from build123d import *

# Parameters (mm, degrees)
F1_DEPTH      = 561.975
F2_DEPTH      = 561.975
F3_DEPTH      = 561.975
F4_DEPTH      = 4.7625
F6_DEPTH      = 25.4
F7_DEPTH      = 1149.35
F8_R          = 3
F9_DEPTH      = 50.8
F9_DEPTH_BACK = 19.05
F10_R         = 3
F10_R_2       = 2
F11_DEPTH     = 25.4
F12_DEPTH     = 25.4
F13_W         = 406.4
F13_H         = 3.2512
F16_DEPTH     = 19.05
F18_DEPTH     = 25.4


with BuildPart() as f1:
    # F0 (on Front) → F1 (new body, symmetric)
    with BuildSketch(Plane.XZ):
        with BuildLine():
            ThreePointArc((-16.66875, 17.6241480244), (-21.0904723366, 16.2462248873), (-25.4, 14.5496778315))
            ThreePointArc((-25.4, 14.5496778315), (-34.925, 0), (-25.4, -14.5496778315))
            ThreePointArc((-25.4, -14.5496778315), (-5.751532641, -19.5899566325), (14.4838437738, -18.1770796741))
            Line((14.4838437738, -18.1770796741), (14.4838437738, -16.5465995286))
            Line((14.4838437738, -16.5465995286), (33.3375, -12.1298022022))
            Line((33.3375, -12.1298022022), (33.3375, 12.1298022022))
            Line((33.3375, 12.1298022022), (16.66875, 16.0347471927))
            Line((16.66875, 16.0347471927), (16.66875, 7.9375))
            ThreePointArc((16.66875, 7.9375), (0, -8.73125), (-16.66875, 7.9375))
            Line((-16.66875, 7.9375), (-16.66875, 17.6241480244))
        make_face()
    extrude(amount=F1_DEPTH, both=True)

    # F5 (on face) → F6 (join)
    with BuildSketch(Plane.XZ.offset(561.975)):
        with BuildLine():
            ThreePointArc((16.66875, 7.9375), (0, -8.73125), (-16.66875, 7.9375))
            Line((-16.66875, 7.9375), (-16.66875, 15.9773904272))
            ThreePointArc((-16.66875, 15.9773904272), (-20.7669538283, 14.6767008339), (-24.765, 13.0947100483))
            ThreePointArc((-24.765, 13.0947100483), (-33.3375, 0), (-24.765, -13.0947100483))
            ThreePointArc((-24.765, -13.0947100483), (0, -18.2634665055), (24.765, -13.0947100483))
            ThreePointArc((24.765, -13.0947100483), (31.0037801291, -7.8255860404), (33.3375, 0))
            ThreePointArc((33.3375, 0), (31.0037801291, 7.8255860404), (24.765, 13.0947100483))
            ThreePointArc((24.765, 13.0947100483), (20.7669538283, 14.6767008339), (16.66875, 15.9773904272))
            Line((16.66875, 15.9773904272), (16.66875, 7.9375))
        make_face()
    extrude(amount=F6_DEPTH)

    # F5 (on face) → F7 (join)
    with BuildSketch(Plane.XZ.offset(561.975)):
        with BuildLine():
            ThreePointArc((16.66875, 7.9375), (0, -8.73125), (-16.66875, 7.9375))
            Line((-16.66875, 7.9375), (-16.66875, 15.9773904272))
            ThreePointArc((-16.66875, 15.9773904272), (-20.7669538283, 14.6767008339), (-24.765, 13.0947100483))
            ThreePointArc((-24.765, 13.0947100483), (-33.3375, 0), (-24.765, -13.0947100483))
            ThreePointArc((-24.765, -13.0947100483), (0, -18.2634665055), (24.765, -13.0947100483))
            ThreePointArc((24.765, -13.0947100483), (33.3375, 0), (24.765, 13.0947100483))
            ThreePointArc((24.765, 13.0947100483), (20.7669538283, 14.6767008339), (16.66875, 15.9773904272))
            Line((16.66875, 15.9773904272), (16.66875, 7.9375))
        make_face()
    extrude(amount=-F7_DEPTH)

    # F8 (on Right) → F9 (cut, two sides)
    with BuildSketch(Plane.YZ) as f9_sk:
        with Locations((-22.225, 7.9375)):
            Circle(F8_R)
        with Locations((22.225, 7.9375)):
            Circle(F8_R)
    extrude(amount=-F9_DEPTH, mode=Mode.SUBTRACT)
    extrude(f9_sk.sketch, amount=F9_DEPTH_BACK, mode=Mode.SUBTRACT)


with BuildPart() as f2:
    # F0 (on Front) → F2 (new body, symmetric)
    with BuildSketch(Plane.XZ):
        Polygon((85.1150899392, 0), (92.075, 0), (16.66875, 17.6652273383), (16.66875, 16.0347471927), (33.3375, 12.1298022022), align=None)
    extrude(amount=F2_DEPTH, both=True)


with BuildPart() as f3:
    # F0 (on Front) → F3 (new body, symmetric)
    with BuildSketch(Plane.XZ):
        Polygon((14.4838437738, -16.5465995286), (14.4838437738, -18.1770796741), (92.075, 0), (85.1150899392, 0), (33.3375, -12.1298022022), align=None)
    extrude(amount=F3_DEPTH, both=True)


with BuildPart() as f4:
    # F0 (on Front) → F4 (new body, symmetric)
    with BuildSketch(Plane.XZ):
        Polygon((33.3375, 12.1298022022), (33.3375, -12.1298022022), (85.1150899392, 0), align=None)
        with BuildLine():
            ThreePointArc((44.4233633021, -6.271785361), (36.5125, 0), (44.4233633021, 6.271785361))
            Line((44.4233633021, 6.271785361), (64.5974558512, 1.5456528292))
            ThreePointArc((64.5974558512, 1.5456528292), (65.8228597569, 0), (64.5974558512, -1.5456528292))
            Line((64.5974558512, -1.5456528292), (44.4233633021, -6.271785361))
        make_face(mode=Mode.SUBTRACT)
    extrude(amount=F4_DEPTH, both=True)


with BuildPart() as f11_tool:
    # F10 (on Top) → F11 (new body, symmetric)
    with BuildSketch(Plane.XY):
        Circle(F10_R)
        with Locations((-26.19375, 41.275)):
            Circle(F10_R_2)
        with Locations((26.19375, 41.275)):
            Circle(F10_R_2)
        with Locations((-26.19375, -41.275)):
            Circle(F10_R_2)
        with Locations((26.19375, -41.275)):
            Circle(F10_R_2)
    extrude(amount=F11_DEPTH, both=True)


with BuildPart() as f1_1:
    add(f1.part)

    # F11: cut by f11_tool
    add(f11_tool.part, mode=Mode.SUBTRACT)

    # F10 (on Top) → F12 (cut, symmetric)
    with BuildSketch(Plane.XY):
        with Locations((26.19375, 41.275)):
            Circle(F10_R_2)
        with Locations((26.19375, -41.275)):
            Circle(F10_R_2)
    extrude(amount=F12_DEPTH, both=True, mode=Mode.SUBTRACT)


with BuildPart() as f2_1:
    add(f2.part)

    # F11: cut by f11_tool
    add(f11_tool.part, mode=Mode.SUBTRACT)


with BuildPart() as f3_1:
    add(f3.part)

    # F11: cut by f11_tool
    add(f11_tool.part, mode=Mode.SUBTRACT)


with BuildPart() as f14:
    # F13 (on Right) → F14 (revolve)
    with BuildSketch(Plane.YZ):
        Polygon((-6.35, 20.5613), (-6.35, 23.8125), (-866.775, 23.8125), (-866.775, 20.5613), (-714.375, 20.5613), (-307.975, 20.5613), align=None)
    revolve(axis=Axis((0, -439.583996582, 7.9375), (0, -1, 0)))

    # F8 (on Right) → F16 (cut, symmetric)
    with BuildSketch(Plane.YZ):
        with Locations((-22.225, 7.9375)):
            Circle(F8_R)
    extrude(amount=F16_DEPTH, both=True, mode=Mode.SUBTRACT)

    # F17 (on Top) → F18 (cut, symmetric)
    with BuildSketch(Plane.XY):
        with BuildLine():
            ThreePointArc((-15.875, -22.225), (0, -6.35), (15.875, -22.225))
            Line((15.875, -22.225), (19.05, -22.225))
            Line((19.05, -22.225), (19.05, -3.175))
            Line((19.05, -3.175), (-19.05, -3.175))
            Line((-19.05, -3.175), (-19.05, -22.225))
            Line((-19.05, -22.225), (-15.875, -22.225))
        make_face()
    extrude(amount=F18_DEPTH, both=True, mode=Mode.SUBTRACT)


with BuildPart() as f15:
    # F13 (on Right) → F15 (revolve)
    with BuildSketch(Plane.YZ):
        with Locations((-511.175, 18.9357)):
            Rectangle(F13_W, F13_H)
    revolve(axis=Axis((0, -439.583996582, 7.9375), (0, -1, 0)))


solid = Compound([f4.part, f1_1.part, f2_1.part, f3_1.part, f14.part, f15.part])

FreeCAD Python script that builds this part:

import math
import FreeCAD as App
import Part
import Sketcher

V = App.Vector
Q = App.Units.Quantity


def add_polygon(sketch, points):
    """Adds a closed chain of lines whose ends are joined by coincident constraints."""
    first, n = sketch.GeometryCount, len(points)
    for a, b in zip(points, points[1:] + points[:1]):
        sketch.addGeometry(Part.LineSegment(App.Vector(*a, 0), App.Vector(*b, 0)), False)
    for i in range(n):
        sketch.addConstraint(Sketcher.Constraint("Coincident", first + i, 2, first + (i + 1) % n, 1))

doc = App.newDocument("Part")
body = doc.addObject("PartDesign::Body", "Body")

sketch1 = body.newObject("Sketcher::SketchObject", "Sketch")
sketch1.AttachmentSupport = (doc.getObject("XZ_Plane"), [""])
sketch1.MapMode = "FlatFace"
sketch1.addGeometry(Part.ArcOfCircle(Part.Circle(V(0, -43.649034, 0), V(0, 0, 1), 63.5), math.radians(105.218455), math.radians(113.578178)), False)
sketch1.addGeometry(Part.ArcOfCircle(Part.Circle(V(-19.05, 0, 0), V(0, 0, 1), 15.875), math.radians(113.578178), math.radians(246.421822)), False)
sketch1.addGeometry(Part.ArcOfCircle(Part.Circle(V(0, 43.649033, 0), V(0, 0, 1), 63.5), math.radians(-113.578178), math.radians(-76.815233)), False)
sketch1.addGeometry(Part.LineSegment(V(14.483844, -18.17708, 0), V(14.483844, -16.5466, 0)), False)
sketch1.addGeometry(Part.LineSegment(V(14.483844, -16.5466, 0), V(33.3375, -12.129802, 0)), False)
sketch1.addGeometry(Part.LineSegment(V(33.3375, -12.129802, 0), V(33.3375, 12.129802, 0)), False)
sketch1.addGeometry(Part.LineSegment(V(33.3375, 12.129802, 0), V(16.66875, 16.034747, 0)), False)
sketch1.addGeometry(Part.LineSegment(V(16.66875, 16.034747, 0), V(16.66875, 7.9375, 0)), False)
sketch1.addGeometry(Part.ArcOfCircle(Part.Circle(V(0, 7.9375, 0), V(0, 0, 1), 16.66875), math.radians(180), math.radians(360)), False)
sketch1.addGeometry(Part.LineSegment(V(-16.66875, 7.9375, 0), V(-16.66875, 17.624148, 0)), False)
sketch1.addConstraint(Sketcher.Constraint("Tangent", 0, 2, 1, 1))
sketch1.addConstraint(Sketcher.Constraint("Tangent", 1, 2, 2, 1))
sketch1.addConstraint(Sketcher.Constraint("Coincident", 2, 2, 3, 1))
sketch1.addConstraint(Sketcher.Constraint("Coincident", 3, 2, 4, 1))
sketch1.addConstraint(Sketcher.Constraint("Coincident", 4, 2, 5, 1))
sketch1.addConstraint(Sketcher.Constraint("Coincident", 5, 2, 6, 1))
sketch1.addConstraint(Sketcher.Constraint("Coincident", 6, 2, 7, 1))
sketch1.addConstraint(Sketcher.Constraint("Tangent", 7, 2, 8, 2))
sketch1.addConstraint(Sketcher.Constraint("Tangent", 8, 1, 9, 1))
sketch1.addConstraint(Sketcher.Constraint("Coincident", 9, 2, 0, 1))
sketch1.addConstraint(Sketcher.Constraint("Vertical", 3))
sketch1.addConstraint(Sketcher.Constraint("Vertical", 5))
sketch1.addConstraint(Sketcher.Constraint("Vertical", 7))
sketch1.addConstraint(Sketcher.Constraint("Vertical", 9))
sketch1.addConstraint(Sketcher.Constraint("Equal", 0, 2))
sketch1.addConstraint(Sketcher.Constraint("Symmetric", 0, 3, 2, 3, -1, 1))
sketch1.addConstraint(Sketcher.Constraint("PointOnObject", 0, 3, -2))
sketch1.addConstraint(Sketcher.Constraint("PointOnObject", 8, 3, -2))
sketch1.addConstraint(Sketcher.Constraint("Radius", 0, Q("2.5 in")))
sketch1.addConstraint(Sketcher.Constraint("DistanceX", 0, 2, -1, 1, Q("1 in")))
sketch1.addConstraint(Sketcher.Constraint("Radius", 1, Q("0.625 in")))
sketch1.addConstraint(Sketcher.Constraint("Radius", 8, Q("0.65625 in")))
sketch1.addConstraint(Sketcher.Constraint("DistanceY", -1, 1, 8, 3, Q("0.3125 in")))
sketch1.addConstraint(Sketcher.Constraint("DistanceX", -1, 1, 4, 2, Q("1.3125 in")))
sketch1.addConstraint(Sketcher.Constraint("DistanceY", 3, 1, 3, 2, Q("1.63048 mm")))
sketch1.addConstraint(Sketcher.Constraint("DistanceY", 3, 2, -1, 1, Q("16.5466 mm")))
sketch1.addConstraint(Sketcher.Constraint("DistanceY", 3, 2, 5, 2, Q("28.676402 mm")))
sketch1.addConstraint(Sketcher.Constraint("Distance", 6, Q("17.120042 mm")))
sketch1.addConstraint(Sketcher.Constraint("DistanceY", 5, 1, 5, 2, Q("24.259604 mm")))
pad1 = body.newObject("PartDesign::Pad", "Pad")
pad1.Profile = sketch1
pad1.Length = Q("44.25 in")
pad1.Midplane = True

sketch2 = body.newObject("Sketcher::SketchObject", "Sketch001")
sketch2.AttachmentSupport = (doc.getObject("XZ_Plane"), [""])
sketch2.MapMode = "FlatFace"
sketch2.AttachmentOffset = App.Placement(V(0, 0, 22.125 * 25.4), App.Rotation())
sketch2.addGeometry(Part.ArcOfCircle(Part.Circle(V(0, 7.9375, 0), V(0, 0, 1), 16.66875), math.radians(180), math.radians(360)), False)
sketch2.addGeometry(Part.LineSegment(V(-16.66875, 7.9375, 0), V(-16.66875, 15.97739, 0)), False)
sketch2.addGeometry(Part.ArcOfCircle(Part.Circle(V(0, -43.649033, 0), V(0, 0, 1), 61.9125), math.radians(105.618498), math.radians(113.578178)), False)
sketch2.addGeometry(Part.ArcOfCircle(Part.Circle(V(-19.05, 0, 0), V(0, 0, 1), 14.2875), math.radians(113.578178), math.radians(246.421822)), False)
sketch2.addGeometry(Part.ArcOfCircle(Part.Circle(V(0, 43.649033, 0), V(0, 0, 1), 61.9125), math.radians(-113.578178), math.radians(-66.421822)), False)
sketch2.addGeometry(Part.ArcOfCircle(Part.Circle(V(19.05, 0, 0), V(0, 0, 1), 14.2875), math.radians(-66.421822), math.radians(0)), False)
sketch2.addGeometry(Part.ArcOfCircle(Part.Circle(V(19.05, 0, 0), V(0, 0, 1), 14.2875), math.radians(0), math.radians(66.421822)), False)
sketch2.addGeometry(Part.ArcOfCircle(Part.Circle(V(0, -43.649033, 0), V(0, 0, 1), 61.9125), math.radians(66.421822), math.radians(74.381502)), False)
sketch2.addGeometry(Part.LineSegment(V(16.66875, 15.97739, 0), V(16.66875, 7.9375, 0)), False)
sketch2.addConstraint(Sketcher.Constraint("Tangent", 0, 1, 1, 1))
sketch2.addConstraint(Sketcher.Constraint("Coincident", 1, 2, 2, 1))
sketch2.addConstraint(Sketcher.Constraint("Tangent", 2, 2, 3, 1))
sketch2.addConstraint(Sketcher.Constraint("Tangent", 3, 2, 4, 1))
sketch2.addConstraint(Sketcher.Constraint("Tangent", 4, 2, 5, 1))
sketch2.addConstraint(Sketcher.Constraint("Tangent", 5, 2, 6, 1))
sketch2.addConstraint(Sketcher.Constraint("Tangent", 6, 2, 7, 1))
sketch2.addConstraint(Sketcher.Constraint("Coincident", 7, 2, 8, 1))
sketch2.addConstraint(Sketcher.Constraint("Tangent", 8, 2, 0, 2))
sketch2.addConstraint(Sketcher.Constraint("Vertical", 1))
sketch2.addConstraint(Sketcher.Constraint("Vertical", 8))
sketch2.addConstraint(Sketcher.Constraint("Coincident", 7, 3, 2, 3))
sketch2.addConstraint(Sketcher.Constraint("Equal", 2, 4))
sketch2.addConstraint(Sketcher.Constraint("Equal", 3, 5))
sketch2.addConstraint(Sketcher.Constraint("Equal", 5, 6))
sketch2.addConstraint(Sketcher.Constraint("Equal", 4, 7))
sketch2.addConstraint(Sketcher.Constraint("Symmetric", 2, 3, 4, 3, -1, 1))
sketch2.addConstraint(Sketcher.Constraint("Symmetric", 1, 2, 7, 2, -2))
sketch2.addConstraint(Sketcher.Constraint("PointOnObject", 5, 2, -1))
sketch2.addConstraint(Sketcher.Constraint("Radius", 0, Q("0.65625 in")))
sketch2.addConstraint(Sketcher.Constraint("Radius", 2, Q("2.4375 in")))
sketch2.addConstraint(Sketcher.Constraint("Radius", 3, Q("0.5625 in")))
sketch2.addConstraint(Sketcher.Constraint("DistanceX", 3, 3, 5, 3, Q("1.5 in")))
sketch2.addConstraint(Sketcher.Constraint("DistanceY", -1, 1, 0, 3, Q("0.3125 in")))
pad2 = body.newObject("PartDesign::Pad", "Pad001")
pad2.Profile = sketch2
pad2.Length = Q("1 in")

sketch3 = body.newObject("Sketcher::SketchObject", "Sketch002")
sketch3.AttachmentSupport = (doc.getObject("XZ_Plane"), [""])
sketch3.MapMode = "FlatFace"
sketch3.AttachmentOffset = App.Placement(V(0, 0, 22.125 * 25.4), App.Rotation())
sketch3.addGeometry(Part.ArcOfCircle(Part.Circle(V(0, 7.9375, 0), V(0, 0, 1), 16.66875), math.radians(180), math.radians(360)), False)
sketch3.addGeometry(Part.LineSegment(V(-16.66875, 7.9375, 0), V(-16.66875, 15.97739, 0)), False)
sketch3.addGeometry(Part.ArcOfCircle(Part.Circle(V(0, -43.649033, 0), V(0, 0, 1), 61.9125), math.radians(105.618498), math.radians(113.578178)), False)
sketch3.addGeometry(Part.ArcOfCircle(Part.Circle(V(-19.05, 0, 0), V(0, 0, 1), 14.2875), math.radians(113.578178), math.radians(246.421822)), False)
sketch3.addGeometry(Part.ArcOfCircle(Part.Circle(V(0, 43.649033, 0), V(0, 0, 1), 61.9125), math.radians(-113.578178), math.radians(-66.421822)), False)
sketch3.addGeometry(Part.ArcOfCircle(Part.Circle(V(19.05, 0, 0), V(0, 0, 1), 14.2875), math.radians(-66.421822), math.radians(66.421822)), False)
sketch3.addGeometry(Part.ArcOfCircle(Part.Circle(V(0, -43.649033, 0), V(0, 0, 1), 61.9125), math.radians(66.421822), math.radians(74.381502)), False)
sketch3.addGeometry(Part.LineSegment(V(16.66875, 15.97739, 0), V(16.66875, 7.9375, 0)), False)
sketch3.addConstraint(Sketcher.Constraint("Tangent", 0, 1, 1, 1))
sketch3.addConstraint(Sketcher.Constraint("Coincident", 1, 2, 2, 1))
sketch3.addConstraint(Sketcher.Constraint("Tangent", 2, 2, 3, 1))
sketch3.addConstraint(Sketcher.Constraint("Tangent", 3, 2, 4, 1))
sketch3.addConstraint(Sketcher.Constraint("Tangent", 4, 2, 5, 1))
sketch3.addConstraint(Sketcher.Constraint("Tangent", 5, 2, 6, 1))
sketch3.addConstraint(Sketcher.Constraint("Coincident", 6, 2, 7, 1))
sketch3.addConstraint(Sketcher.Constraint("Tangent", 7, 2, 0, 2))
sketch3.addConstraint(Sketcher.Constraint("Vertical", 1))
sketch3.addConstraint(Sketcher.Constraint("Vertical", 7))
sketch3.addConstraint(Sketcher.Constraint("Coincident", 6, 3, 2, 3))
sketch3.addConstraint(Sketcher.Constraint("Equal", 2, 4))
sketch3.addConstraint(Sketcher.Constraint("Equal", 3, 5))
sketch3.addConstraint(Sketcher.Constraint("Equal", 4, 6))
sketch3.addConstraint(Sketcher.Constraint("Symmetric", 2, 3, 4, 3, -1, 1))
sketch3.addConstraint(Sketcher.Constraint("Symmetric", 1, 2, 6, 2, -2))
sketch3.addConstraint(Sketcher.Constraint("Radius", 0, Q("0.65625 in")))
sketch3.addConstraint(Sketcher.Constraint("Radius", 2, Q("2.4375 in")))
sketch3.addConstraint(Sketcher.Constraint("Radius", 3, Q("0.5625 in")))
sketch3.addConstraint(Sketcher.Constraint("DistanceX", 3, 3, 5, 3, Q("1.5 in")))
sketch3.addConstraint(Sketcher.Constraint("DistanceY", -1, 1, 0, 3, Q("0.3125 in")))
pad3 = body.newObject("PartDesign::Pad", "Pad002")
pad3.Profile = sketch3
pad3.Length = Q("45.25 in")
pad3.Reversed = True

sketch4 = body.newObject("Sketcher::SketchObject", "Sketch003")
sketch4.AttachmentSupport = (doc.getObject("YZ_Plane"), [""])
sketch4.MapMode = "FlatFace"
sketch4.addGeometry(Part.Circle(V(-22.225, 7.9375, 0), V(0, 0, 1), 3), False)
sketch4.addGeometry(Part.Circle(V(22.225, 7.9375, 0), V(0, 0, 1), 3), False)
sketch4.addConstraint(Sketcher.Constraint("Equal", 0, 1))
sketch4.addConstraint(Sketcher.Constraint("Symmetric", 0, 3, 1, 3, -2))
sketch4.addConstraint(Sketcher.Constraint("Diameter", 0, Q("6 mm")))
sketch4.addConstraint(Sketcher.Constraint("DistanceX", 0, 3, 1, 3, Q("1.75 in")))
sketch4.addConstraint(Sketcher.Constraint("DistanceY", -1, 1, 0, 3, Q("0.3125 in")))
pocket1 = body.newObject("PartDesign::Pocket", "Pocket")
pocket1.Profile = sketch4
pocket1.Type = "TwoLengths"
pocket1.Length = Q("2 in")
pocket1.Length2 = Q("0.75 in")
body2 = doc.addObject("PartDesign::Body", "Body001")

sketch5 = body2.newObject("Sketcher::SketchObject", "Sketch004")
sketch5.AttachmentSupport = (doc.getObject("XZ_Plane001"), [""])
sketch5.MapMode = "FlatFace"
add_polygon(sketch5, [(85.11509, 0), (92.075, 0), (16.66875, 17.665227), (16.66875, 16.034747), (33.3375, 12.129802)])
sketch5.addConstraint(Sketcher.Constraint("Horizontal", 0))
sketch5.addConstraint(Sketcher.Constraint("Vertical", 2))
sketch5.addConstraint(Sketcher.Constraint("PointOnObject", 0, 2, -1))
sketch5.addConstraint(Sketcher.Constraint("Parallel", 1, 3))
sketch5.addConstraint(Sketcher.Constraint("Parallel", 3, 4))
sketch5.addConstraint(Sketcher.Constraint("DistanceX", -1, 1, 0, 2, Q("3.625 in")))
sketch5.addConstraint(Sketcher.Constraint("DistanceX", -1, 1, 1, 2, Q("0.65625 in")))
sketch5.addConstraint(Sketcher.Constraint("DistanceX", -1, 1, 3, 2, Q("1.3125 in")))
sketch5.addConstraint(Sketcher.Constraint("DistanceX", 0, 1, 0, 2, Q("6.95991 mm")))
sketch5.addConstraint(Sketcher.Constraint("DistanceY", 2, 2, 2, 1, Q("1.63048 mm")))
pad4 = body2.newObject("PartDesign::Pad", "Pad003")
pad4.Profile = sketch5
pad4.Length = Q("44.25 in")
pad4.Midplane = True
body3 = doc.addObject("PartDesign::Body", "Body002")

sketch6 = body3.newObject("Sketcher::SketchObject", "Sketch005")
sketch6.AttachmentSupport = (doc.getObject("XZ_Plane002"), [""])
sketch6.MapMode = "FlatFace"
add_polygon(sketch6, [(14.483844, -16.5466), (14.483844, -18.17708), (92.075, 0), (85.11509, 0), (33.3375, -12.129802)])
sketch6.addConstraint(Sketcher.Constraint("Vertical", 0))
sketch6.addConstraint(Sketcher.Constraint("Horizontal", 2))
sketch6.addConstraint(Sketcher.Constraint("PointOnObject", 1, 2, -1))
sketch6.addConstraint(Sketcher.Constraint("Parallel", 1, 3))
sketch6.addConstraint(Sketcher.Constraint("Parallel", 3, 4))
sketch6.addConstraint(Sketcher.Constraint("DistanceX", -1, 1, 1, 2, Q("3.625 in")))
sketch6.addConstraint(Sketcher.Constraint("DistanceX", -1, 1, 3, 2, Q("1.3125 in")))
sketch6.addConstraint(Sketcher.Constraint("DistanceX", 2, 2, 2, 1, Q("6.95991 mm")))
sketch6.addConstraint(Sketcher.Constraint("DistanceY", 0, 2, 0, 1, Q("1.63048 mm")))
sketch6.addConstraint(Sketcher.Constraint("DistanceY", 4, 2, -1, 1, Q("16.5466 mm")))
pad5 = body3.newObject("PartDesign::Pad", "Pad004")
pad5.Profile = sketch6
pad5.Length = Q("44.25 in")
pad5.Midplane = True
body4 = doc.addObject("PartDesign::Body", "Body003")

sketch7 = body4.newObject("Sketcher::SketchObject", "Sketch006")
sketch7.AttachmentSupport = (doc.getObject("XZ_Plane003"), [""])
sketch7.MapMode = "FlatFace"
add_polygon(sketch7, [(33.3375, 12.129802), (33.3375, -12.129802), (85.11509, 0)])
sketch7.addGeometry(Part.LineSegment(V(64.597456, -1.545653, 0), V(44.423363, -6.271785, 0)), False)
sketch7.addGeometry(Part.ArcOfCircle(Part.Circle(V(42.954088, 0, 0), V(0, 0, 1), 6.441588), math.radians(76.815233), math.radians(283.184767)), False)
sketch7.addGeometry(Part.LineSegment(V(44.423363, 6.271785, 0), V(64.597456, 1.545653, 0)), False)
sketch7.addGeometry(Part.ArcOfCircle(Part.Circle(V(64.23536, 0, 0), V(0, 0, 1), 1.5875), math.radians(-76.815233), math.radians(76.815233)), False)
sketch7.addConstraint(Sketcher.Constraint("Tangent", 3, 2, 4, 2))
sketch7.addConstraint(Sketcher.Constraint("Tangent", 4, 1, 5, 1))
sketch7.addConstraint(Sketcher.Constraint("Tangent", 5, 2, 6, 2))
sketch7.addConstraint(Sketcher.Constraint("Tangent", 6, 1, 3, 1))
sketch7.addConstraint(Sketcher.Constraint("Vertical", 0))
sketch7.addConstraint(Sketcher.Constraint("Symmetric", 3, 2, 4, 1, -1))
sketch7.addConstraint(Sketcher.Constraint("PointOnObject", 1, 2, -1))
sketch7.addConstraint(Sketcher.Constraint("Parallel", 1, 3))
sketch7.addConstraint(Sketcher.Constraint("Parallel", 2, 5))
sketch7.addConstraint(Sketcher.Constraint("Radius", 6, Q("0.0625 in")))
sketch7.addConstraint(Sketcher.Constraint("DistanceX", 3, 2, 6, 3, Q("0.7799999 in")))
sketch7.addConstraint(Sketcher.Constraint("DistanceX", -1, 1, 0, 2, Q("1.3125 in")))
sketch7.addConstraint(Sketcher.Constraint("Radius", 4, Q("6.441588 mm")))
sketch7.addConstraint(Sketcher.Constraint("DistanceX", 4, 3, 1, 2, Q("42.161002 mm")))
sketch7.addConstraint(Sketcher.Constraint("Distance", 1, Q("53.179422 mm")))
pad6 = body4.newObject("PartDesign::Pad", "Pad005")
pad6.Profile = sketch7
pad6.Length = Q("0.375 in")
pad6.Midplane = True
body5 = doc.addObject("PartDesign::Body", "Body004")
body5.AllowCompound = True

sketch8 = body5.newObject("Sketcher::SketchObject", "Sketch007")
sketch8.AttachmentSupport = (doc.getObject("XY_Plane004"), [""])
sketch8.MapMode = "FlatFace"
sketch8.addGeometry(Part.Circle(V(0, 0, 0), V(0, 0, 1), 3), False)
sketch8.addGeometry(Part.Circle(V(-26.19375, 41.275, 0), V(0, 0, 1), 2), False)
sketch8.addGeometry(Part.Circle(V(26.19375, 41.275, 0), V(0, 0, 1), 2), False)
sketch8.addGeometry(Part.Circle(V(-26.19375, -41.275, 0), V(0, 0, 1), 2), False)
sketch8.addGeometry(Part.Circle(V(26.19375, -41.275, 0), V(0, 0, 1), 2), False)
sketch8.addConstraint(Sketcher.Constraint("Coincident", 0, 3, -1, 1))
sketch8.addConstraint(Sketcher.Constraint("Equal", 1, 2))
sketch8.addConstraint(Sketcher.Constraint("Equal", 2, 3))
sketch8.addConstraint(Sketcher.Constraint("Equal", 3, 4))
sketch8.addConstraint(Sketcher.Constraint("Symmetric", 2, 3, 3, 3, -1, 1))
sketch8.addConstraint(Sketcher.Constraint("Symmetric", 1, 3, 4, 3, -1, 1))
sketch8.addConstraint(Sketcher.Constraint("Symmetric", 1, 3, 2, 3, -2))
sketch8.addConstraint(Sketcher.Constraint("Diameter", 0, Q("6 mm")))
sketch8.addConstraint(Sketcher.Constraint("Diameter", 1, Q("4 mm")))
sketch8.addConstraint(Sketcher.Constraint("DistanceY", 3, 3, 1, 3, Q("3.25 in")))
sketch8.addConstraint(Sketcher.Constraint("DistanceX", 1, 3, -1, 1, Q("1.03125 in")))
pad7 = body5.newObject("PartDesign::Pad", "Pad006")
pad7.Profile = sketch8
pad7.Length = Q("2 in")
pad7.Midplane = True
doc.recompute()

body6 = doc.addObject("PartDesign::Body", "Body005")
body6.BaseFeature = body5
boolean = body.newObject("PartDesign::Boolean", "Boolean")
boolean.Type = "Cut"
boolean.addObjects([body6])
doc.recompute()

sketch9 = body.newObject("Sketcher::SketchObject", "Sketch008")
sketch9.AttachmentSupport = (doc.getObject("XY_Plane"), [""])
sketch9.MapMode = "FlatFace"
sketch9.addGeometry(Part.Circle(V(26.19375, 41.275, 0), V(0, 0, 1), 2), False)
sketch9.addGeometry(Part.Circle(V(26.19375, -41.275, 0), V(0, 0, 1), 2), False)
sketch9.addConstraint(Sketcher.Constraint("Equal", 0, 1))
sketch9.addConstraint(Sketcher.Constraint("Symmetric", 0, 3, 1, 3, -1))
sketch9.addConstraint(Sketcher.Constraint("Diameter", 0, Q("4 mm")))
sketch9.addConstraint(Sketcher.Constraint("DistanceY", 1, 3, 0, 3, Q("3.25 in")))
sketch9.addConstraint(Sketcher.Constraint("DistanceX", -1, 1, 0, 3, Q("1.03125 in")))
pocket2 = body.newObject("PartDesign::Pocket", "Pocket001")
pocket2.Profile = sketch9
pocket2.Length = Q("2 in")
pocket2.Midplane = True
doc.recompute()

body7 = doc.addObject("PartDesign::Body", "Body006")
body7.BaseFeature = body5
boolean2 = body2.newObject("PartDesign::Boolean", "Boolean001")
boolean2.Type = "Cut"
boolean2.addObjects([body7])
doc.recompute()

boolean3 = body3.newObject("PartDesign::Boolean", "Boolean002")
boolean3.Type = "Cut"
boolean3.addObjects([body5])
body8 = doc.addObject("PartDesign::Body", "Body007")

sketch10 = body8.newObject("Sketcher::SketchObject", "Sketch009")
sketch10.AttachmentSupport = (doc.getObject("YZ_Plane007"), [""])
sketch10.MapMode = "FlatFace"
add_polygon(sketch10, [(-6.35, 20.5613), (-6.35, 23.8125), (-866.775, 23.8125), (-866.775, 20.5613)])
sketch10.addGeometry(Part.LineSegment(V(-6.35, 7.9375, 0), V(-866.775, 7.9375, 0)), True)
sketch10.addConstraint(Sketcher.Constraint("Vertical", 0))
sketch10.addConstraint(Sketcher.Constraint("Horizontal", 1))
sketch10.addConstraint(Sketcher.Constraint("Vertical", 2))
sketch10.addConstraint(Sketcher.Constraint("Horizontal", 3))
sketch10.addConstraint(Sketcher.Constraint("Horizontal", 4))
sketch10.addConstraint(Sketcher.Constraint("Vertical", 3, 2, 4, 1))
sketch10.addConstraint(Sketcher.Constraint("Vertical", 2, 2, 4, 2))
sketch10.addConstraint(Sketcher.Constraint("DistanceX", 1, 2, 1, 1, Q("33.875 in")))
sketch10.addConstraint(Sketcher.Constraint("DistanceY", 0, 1, 0, 2, Q("0.128 in")))
sketch10.addConstraint(Sketcher.Constraint("DistanceX", 0, 2, -1, 1, Q("0.25 in")))
sketch10.addConstraint(Sketcher.Constraint("DistanceY", -1, 1, 0, 2, Q("0.9375 in")))
sketch10.addConstraint(Sketcher.Constraint("DistanceY", -1, 1, 4, 1, Q("0.3125 in")))
revolution = body8.newObject("PartDesign::Revolution", "Revolution")
revolution.Profile = sketch10
revolution.ReferenceAxis = (sketch10, ["Axis0"])
revolution.Angle = 360

sketch11 = body8.newObject("Sketcher::SketchObject", "Sketch010")
sketch11.AttachmentSupport = (doc.getObject("YZ_Plane007"), [""])
sketch11.MapMode = "FlatFace"
sketch11.addGeometry(Part.Circle(V(-22.225, 7.9375, 0), V(0, 0, 1), 3), False)
sketch11.addConstraint(Sketcher.Constraint("Diameter", 0, Q("6 mm")))
sketch11.addConstraint(Sketcher.Constraint("DistanceX", 0, 3, -1, 1, Q("0.875 in")))
sketch11.addConstraint(Sketcher.Constraint("DistanceY", -1, 1, 0, 3, Q("0.3125 in")))
pocket3 = body8.newObject("PartDesign::Pocket", "Pocket002")
pocket3.Profile = sketch11
pocket3.Length = Q("1.5 in")
pocket3.Midplane = True

sketch12 = body8.newObject("Sketcher::SketchObject", "Sketch011")
sketch12.AttachmentSupport = (doc.getObject("XY_Plane007"), [""])
sketch12.MapMode = "FlatFace"
sketch12.addGeometry(Part.ArcOfCircle(Part.Circle(V(0, -22.225, 0), V(0, 0, 1), 15.875), math.radians(0), math.radians(180)), False)
sketch12.addGeometry(Part.LineSegment(V(15.875, -22.225, 0), V(19.05, -22.225, 0)), False)
sketch12.addGeometry(Part.LineSegment(V(19.05, -22.225, 0), V(19.05, -3.175, 0)), False)
sketch12.addGeometry(Part.LineSegment(V(19.05, -3.175, 0), V(-19.05, -3.175, 0)), False)
sketch12.addGeometry(Part.LineSegment(V(-19.05, -3.175, 0), V(-19.05, -22.225, 0)), False)
sketch12.addGeometry(Part.LineSegment(V(-19.05, -22.225, 0), V(-15.875, -22.225, 0)), False)
sketch12.addConstraint(Sketcher.Constraint("Coincident", 0, 1, 1, 1))
sketch12.addConstraint(Sketcher.Constraint("Coincident", 1, 2, 2, 1))
sketch12.addConstraint(Sketcher.Constraint("Coincident", 2, 2, 3, 1))
sketch12.addConstraint(Sketcher.Constraint("Coincident", 3, 2, 4, 1))
sketch12.addConstraint(Sketcher.Constraint("Coincident", 4, 2, 5, 1))
sketch12.addConstraint(Sketcher.Constraint("Coincident", 5, 2, 0, 2))
sketch12.addConstraint(Sketcher.Constraint("Horizontal", 1))
sketch12.addConstraint(Sketcher.Constraint("Vertical", 2))
sketch12.addConstraint(Sketcher.Constraint("Horizontal", 3))
sketch12.addConstraint(Sketcher.Constraint("Vertical", 4))
sketch12.addConstraint(Sketcher.Constraint("Horizontal", 5))
sketch12.addConstraint(Sketcher.Constraint("Symmetric", 1, 2, 4, 2, -2))
sketch12.addConstraint(Sketcher.Constraint("PointOnObject", 0, 3, -2))
sketch12.addConstraint(Sketcher.Constraint("DistanceX", 3, 2, 3, 1, Q("1.5 in")))
sketch12.addConstraint(Sketcher.Constraint("Radius", 0, Q("0.625 in")))
sketch12.addConstraint(Sketcher.Constraint("DistanceY", 2, 1, 2, 2, Q("0.75 in")))
sketch12.addConstraint(Sketcher.Constraint("DistanceY", 0, 3, 2, 2, Q("0.75 in")))
sketch12.addConstraint(Sketcher.Constraint("DistanceY", 0, 3, -1, 1, Q("0.875 in")))
pocket4 = body8.newObject("PartDesign::Pocket", "Pocket003")
pocket4.Profile = sketch12
pocket4.Length = Q("2 in")
pocket4.Midplane = True
body9 = doc.addObject("PartDesign::Body", "Body008")

sketch13 = body9.newObject("Sketcher::SketchObject", "Sketch012")
sketch13.AttachmentSupport = (doc.getObject("YZ_Plane008"), [""])
sketch13.MapMode = "FlatFace"
add_polygon(sketch13, [(-714.375, 20.5613), (-714.375, 17.3101), (-307.975, 17.3101), (-307.975, 20.5613)])
sketch13.addGeometry(Part.LineSegment(V(-307.975, 7.9375, 0), V(-714.375, 7.9375, 0)), True)
sketch13.addConstraint(Sketcher.Constraint("Vertical", 0))
sketch13.addConstraint(Sketcher.Constraint("Horizontal", 1))
sketch13.addConstraint(Sketcher.Constraint("Vertical", 2))
sketch13.addConstraint(Sketcher.Constraint("Horizontal", 3))
sketch13.addConstraint(Sketcher.Constraint("Horizontal", 4))
sketch13.addConstraint(Sketcher.Constraint("Vertical", 2, 2, 4, 1))
sketch13.addConstraint(Sketcher.Constraint("Vertical", 3, 2, 4, 2))
sketch13.addConstraint(Sketcher.Constraint("DistanceX", 1, 1, 1, 2, Q("16 in")))
sketch13.addConstraint(Sketcher.Constraint("DistanceY", 0, 2, 0, 1, Q("0.128 in")))
sketch13.addConstraint(Sketcher.Constraint("DistanceX", 0, 2, -1, 1, Q("28.125 in")))
sketch13.addConstraint(Sketcher.Constraint("DistanceY", -1, 1, 4, 1, Q("0.3125 in")))
sketch13.addConstraint(Sketcher.Constraint("DistanceY", 4, 1, 1, 2, Q("0.369 in")))
revolution2 = body9.newObject("PartDesign::Revolution", "Revolution001")
revolution2.Profile = sketch13
revolution2.ReferenceAxis = (sketch13, ["Axis0"])
revolution2.Angle = 360

doc.recompute()
